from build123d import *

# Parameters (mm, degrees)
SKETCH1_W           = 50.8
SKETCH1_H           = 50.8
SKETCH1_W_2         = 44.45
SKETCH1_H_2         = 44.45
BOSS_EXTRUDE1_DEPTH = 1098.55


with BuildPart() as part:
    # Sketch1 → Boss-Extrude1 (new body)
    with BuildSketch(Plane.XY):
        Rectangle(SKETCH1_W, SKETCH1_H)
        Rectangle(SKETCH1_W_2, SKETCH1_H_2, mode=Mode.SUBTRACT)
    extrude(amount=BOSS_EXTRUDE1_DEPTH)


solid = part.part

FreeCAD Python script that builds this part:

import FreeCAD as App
import Part
import Sketcher
from FreeCAD import Vector
Q = App.Units.Quantity

doc = App.newDocument("Part")
params = doc.addObject("Spreadsheet::Sheet", "Params")
for row, (alias, value) in enumerate([
    ("sketch1_width", "2 in"),
    ("sketch1_width2", "1.75 in"),
    ("pad1_length", "43.25 in"),
], start=1):
    params.set(f"A{row}", alias)
    params.set(f"B{row}", "=" + value)
    params.setAlias(f"B{row}", alias)

body = doc.addObject("PartDesign::Body", "Body")

# Sketch on XY plane
sketch1 = body.newObject("Sketcher::SketchObject", "Sketch")
sketch1.AttachmentSupport = (doc.getObject("XY_Plane"), [""])
sketch1.MapMode = "FlatFace"
sketch1.addGeometry(Part.LineSegment(Vector(-25, 25, 0), Vector(-25, -25, 0)), False)
sketch1.addGeometry(Part.LineSegment(Vector(-25, -25, 0), Vector(25, -25, 0)), False)
sketch1.addGeometry(Part.LineSegment(Vector(25, -25, 0), Vector(25, 25, 0)), False)
sketch1.addGeometry(Part.LineSegment(Vector(25, 25, 0), Vector(-25, 25, 0)), False)
sketch1.addGeometry(Part.LineSegment(Vector(22, -22, 0), Vector(-22, -22, 0)), False)
sketch1.addGeometry(Part.LineSegment(Vector(-22, -22, 0), Vector(-22, 22, 0)), False)
sketch1.addGeometry(Part.LineSegment(Vector(-22, 22, 0), Vector(22, 22, 0)), False)
sketch1.addGeometry(Part.LineSegment(Vector(22, 22, 0), Vector(22, -22, 0)), False)
sketch1.addConstraint(Sketcher.Constraint("Coincident", 0, 2, 1, 1))
sketch1.addConstraint(Sketcher.Constraint("Coincident", 1, 2, 2, 1))
sketch1.addConstraint(Sketcher.Constraint("Coincident", 2, 2, 3, 1))
sketch1.addConstraint(Sketcher.Constraint("Coincident", 3, 2, 0, 1))
sketch1.addConstraint(Sketcher.Constraint("Coincident", 4, 2, 5, 1))
sketch1.addConstraint(Sketcher.Constraint("Coincident", 5, 2, 6, 1))
sketch1.addConstraint(Sketcher.Constraint("Coincident", 6, 2, 7, 1))
sketch1.addConstraint(Sketcher.Constraint("Coincident", 7, 2, 4, 1))
sketch1.addConstraint(Sketcher.Constraint("Vertical", 0))
sketch1.addConstraint(Sketcher.Constraint("Horizontal", 1))
sketch1.addConstraint(Sketcher.Constraint("Vertical", 2))
sketch1.addConstraint(Sketcher.Constraint("Horizontal", 3))
sketch1.addConstraint(Sketcher.Constraint("Horizontal", 4))
sketch1.addConstraint(Sketcher.Constraint("Vertical", 5))
sketch1.addConstraint(Sketcher.Constraint("Horizontal", 6))
sketch1.addConstraint(Sketcher.Constraint("Vertical", 7))
sketch1.addConstraint(Sketcher.Constraint("Symmetric", 0, 2, 2, 2, -1, 1))
sketch1.addConstraint(Sketcher.Constraint("Symmetric", 4, 2, 6, 2, -1, 1))
sketch1.addConstraint(Sketcher.Constraint("Equal", 3, 0))
sketch1.addConstraint(Sketcher.Constraint("Equal", 6, 5))
sketch1.addConstraint(Sketcher.Constraint("DistanceX", 1, 1, 1, 2, Q("2 in")))
sketch1.addConstraint(Sketcher.Constraint("DistanceX", 4, 2, 4, 1, Q("1.75 in")))
sketch1.setExpression("Constraints[20]", "Params.sketch1_width")
sketch1.setExpression("Constraints[21]", "Params.sketch1_width2")
pad1 = body.newObject("PartDesign::Pad", "Pad")
pad1.Profile = sketch1
pad1.setExpression("Length", "Params.pad1_length")

doc.recompute()
